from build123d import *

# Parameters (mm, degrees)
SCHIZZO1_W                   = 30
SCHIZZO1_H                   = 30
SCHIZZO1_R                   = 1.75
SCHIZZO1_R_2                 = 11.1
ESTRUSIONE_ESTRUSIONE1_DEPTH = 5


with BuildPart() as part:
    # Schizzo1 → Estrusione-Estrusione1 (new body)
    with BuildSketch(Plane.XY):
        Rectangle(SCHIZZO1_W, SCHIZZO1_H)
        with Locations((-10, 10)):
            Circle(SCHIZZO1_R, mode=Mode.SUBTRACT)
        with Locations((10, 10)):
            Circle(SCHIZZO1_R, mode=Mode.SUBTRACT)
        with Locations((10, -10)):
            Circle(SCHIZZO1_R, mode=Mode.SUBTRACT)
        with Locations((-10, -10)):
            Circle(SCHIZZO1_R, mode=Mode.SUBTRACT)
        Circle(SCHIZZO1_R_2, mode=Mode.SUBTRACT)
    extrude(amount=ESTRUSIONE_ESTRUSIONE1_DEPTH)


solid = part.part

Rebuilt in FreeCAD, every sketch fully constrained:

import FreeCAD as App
import Part
import Sketcher
from FreeCAD import Vector
Q = App.Units.Quantity


def add_polygon(sketch, points):
    """Adds a closed chain of lines whose ends are joined by coincident constraints."""
    first, n = sketch.GeometryCount, len(points)
    for a, b in zip(points, points[1:] + points[:1]):
        sketch.addGeometry(Part.LineSegment(App.Vector(*a, 0), App.Vector(*b, 0)), False)
    for i in range(n):
        sketch.addConstraint(Sketcher.Constraint("Coincident", first + i, 2, first + (i + 1) % n, 1))

doc = App.newDocument("Part")
body = doc.addObject("PartDesign::Body", "Body")

sketch1 = body.newObject("Sketcher::SketchObject", "Sketch")
sketch1.AttachmentSupport = (doc.getObject("XY_Plane"), [""])
sketch1.MapMode = "FlatFace"
add_polygon(sketch1, [(-15, 15), (-15, -15), (15, -15), (15, 15)])
sketch1.addGeometry(Part.Circle(Vector(-10, -10, 0), Vector(0, 0, 1), 1.75), False)
sketch1.addGeometry(Part.Circle(Vector(10, -10, 0), Vector(0, 0, 1), 1.75), False)
sketch1.addGeometry(Part.Circle(Vector(-10, 10, 0), Vector(0, 0, 1), 1.75), False)
sketch1.addGeometry(Part.Circle(Vector(0, 0, 0), Vector(0, 0, 1), 11.1), False)
sketch1.addGeometry(Part.Circle(Vector(10, 10, 0), Vector(0, 0, 1), 1.75), False)
sketch1.addConstraint([
    Sketcher.Constraint("Vertical", 0),
    Sketcher.Constraint("Horizontal", 1),
    Sketcher.Constraint("Vertical", 2),
    Sketcher.Constraint("Horizontal", 3),
    Sketcher.Constraint("Coincident", 7, 3, -1, 1),
    Sketcher.Constraint("Equal", 4, 5),
    Sketcher.Constraint("Equal", 5, 6),
    Sketcher.Constraint("Equal", 6, 8),
    Sketcher.Constraint("Symmetric", 5, 3, 6, 3, -1, 1),
    Sketcher.Constraint("Symmetric", 4, 3, 8, 3, -1, 1),
    Sketcher.Constraint("Symmetric", 0, 2, 2, 2, -1, 1),
    Sketcher.Constraint("Symmetric", 4, 3, 5, 3, -2),
    Sketcher.Constraint("Equal", 3, 0),
    Sketcher.Constraint("Diameter", 4, Q("3.5 mm")),
    Sketcher.Constraint("Diameter", 7, Q("22.2 mm")),
    Sketcher.Constraint("DistanceX", 1, 1, 1, 2, Q("30 mm")),
    Sketcher.Constraint("DistanceX", 4, 3, -1, 1, Q("10 mm")),
    Sketcher.Constraint("DistanceY", 4, 3, -1, 1, Q("10 mm")),
])
pad1 = body.newObject("PartDesign::Pad", "Pad")
pad1.Profile = sketch1
pad1.Length = 5

doc.recompute()
